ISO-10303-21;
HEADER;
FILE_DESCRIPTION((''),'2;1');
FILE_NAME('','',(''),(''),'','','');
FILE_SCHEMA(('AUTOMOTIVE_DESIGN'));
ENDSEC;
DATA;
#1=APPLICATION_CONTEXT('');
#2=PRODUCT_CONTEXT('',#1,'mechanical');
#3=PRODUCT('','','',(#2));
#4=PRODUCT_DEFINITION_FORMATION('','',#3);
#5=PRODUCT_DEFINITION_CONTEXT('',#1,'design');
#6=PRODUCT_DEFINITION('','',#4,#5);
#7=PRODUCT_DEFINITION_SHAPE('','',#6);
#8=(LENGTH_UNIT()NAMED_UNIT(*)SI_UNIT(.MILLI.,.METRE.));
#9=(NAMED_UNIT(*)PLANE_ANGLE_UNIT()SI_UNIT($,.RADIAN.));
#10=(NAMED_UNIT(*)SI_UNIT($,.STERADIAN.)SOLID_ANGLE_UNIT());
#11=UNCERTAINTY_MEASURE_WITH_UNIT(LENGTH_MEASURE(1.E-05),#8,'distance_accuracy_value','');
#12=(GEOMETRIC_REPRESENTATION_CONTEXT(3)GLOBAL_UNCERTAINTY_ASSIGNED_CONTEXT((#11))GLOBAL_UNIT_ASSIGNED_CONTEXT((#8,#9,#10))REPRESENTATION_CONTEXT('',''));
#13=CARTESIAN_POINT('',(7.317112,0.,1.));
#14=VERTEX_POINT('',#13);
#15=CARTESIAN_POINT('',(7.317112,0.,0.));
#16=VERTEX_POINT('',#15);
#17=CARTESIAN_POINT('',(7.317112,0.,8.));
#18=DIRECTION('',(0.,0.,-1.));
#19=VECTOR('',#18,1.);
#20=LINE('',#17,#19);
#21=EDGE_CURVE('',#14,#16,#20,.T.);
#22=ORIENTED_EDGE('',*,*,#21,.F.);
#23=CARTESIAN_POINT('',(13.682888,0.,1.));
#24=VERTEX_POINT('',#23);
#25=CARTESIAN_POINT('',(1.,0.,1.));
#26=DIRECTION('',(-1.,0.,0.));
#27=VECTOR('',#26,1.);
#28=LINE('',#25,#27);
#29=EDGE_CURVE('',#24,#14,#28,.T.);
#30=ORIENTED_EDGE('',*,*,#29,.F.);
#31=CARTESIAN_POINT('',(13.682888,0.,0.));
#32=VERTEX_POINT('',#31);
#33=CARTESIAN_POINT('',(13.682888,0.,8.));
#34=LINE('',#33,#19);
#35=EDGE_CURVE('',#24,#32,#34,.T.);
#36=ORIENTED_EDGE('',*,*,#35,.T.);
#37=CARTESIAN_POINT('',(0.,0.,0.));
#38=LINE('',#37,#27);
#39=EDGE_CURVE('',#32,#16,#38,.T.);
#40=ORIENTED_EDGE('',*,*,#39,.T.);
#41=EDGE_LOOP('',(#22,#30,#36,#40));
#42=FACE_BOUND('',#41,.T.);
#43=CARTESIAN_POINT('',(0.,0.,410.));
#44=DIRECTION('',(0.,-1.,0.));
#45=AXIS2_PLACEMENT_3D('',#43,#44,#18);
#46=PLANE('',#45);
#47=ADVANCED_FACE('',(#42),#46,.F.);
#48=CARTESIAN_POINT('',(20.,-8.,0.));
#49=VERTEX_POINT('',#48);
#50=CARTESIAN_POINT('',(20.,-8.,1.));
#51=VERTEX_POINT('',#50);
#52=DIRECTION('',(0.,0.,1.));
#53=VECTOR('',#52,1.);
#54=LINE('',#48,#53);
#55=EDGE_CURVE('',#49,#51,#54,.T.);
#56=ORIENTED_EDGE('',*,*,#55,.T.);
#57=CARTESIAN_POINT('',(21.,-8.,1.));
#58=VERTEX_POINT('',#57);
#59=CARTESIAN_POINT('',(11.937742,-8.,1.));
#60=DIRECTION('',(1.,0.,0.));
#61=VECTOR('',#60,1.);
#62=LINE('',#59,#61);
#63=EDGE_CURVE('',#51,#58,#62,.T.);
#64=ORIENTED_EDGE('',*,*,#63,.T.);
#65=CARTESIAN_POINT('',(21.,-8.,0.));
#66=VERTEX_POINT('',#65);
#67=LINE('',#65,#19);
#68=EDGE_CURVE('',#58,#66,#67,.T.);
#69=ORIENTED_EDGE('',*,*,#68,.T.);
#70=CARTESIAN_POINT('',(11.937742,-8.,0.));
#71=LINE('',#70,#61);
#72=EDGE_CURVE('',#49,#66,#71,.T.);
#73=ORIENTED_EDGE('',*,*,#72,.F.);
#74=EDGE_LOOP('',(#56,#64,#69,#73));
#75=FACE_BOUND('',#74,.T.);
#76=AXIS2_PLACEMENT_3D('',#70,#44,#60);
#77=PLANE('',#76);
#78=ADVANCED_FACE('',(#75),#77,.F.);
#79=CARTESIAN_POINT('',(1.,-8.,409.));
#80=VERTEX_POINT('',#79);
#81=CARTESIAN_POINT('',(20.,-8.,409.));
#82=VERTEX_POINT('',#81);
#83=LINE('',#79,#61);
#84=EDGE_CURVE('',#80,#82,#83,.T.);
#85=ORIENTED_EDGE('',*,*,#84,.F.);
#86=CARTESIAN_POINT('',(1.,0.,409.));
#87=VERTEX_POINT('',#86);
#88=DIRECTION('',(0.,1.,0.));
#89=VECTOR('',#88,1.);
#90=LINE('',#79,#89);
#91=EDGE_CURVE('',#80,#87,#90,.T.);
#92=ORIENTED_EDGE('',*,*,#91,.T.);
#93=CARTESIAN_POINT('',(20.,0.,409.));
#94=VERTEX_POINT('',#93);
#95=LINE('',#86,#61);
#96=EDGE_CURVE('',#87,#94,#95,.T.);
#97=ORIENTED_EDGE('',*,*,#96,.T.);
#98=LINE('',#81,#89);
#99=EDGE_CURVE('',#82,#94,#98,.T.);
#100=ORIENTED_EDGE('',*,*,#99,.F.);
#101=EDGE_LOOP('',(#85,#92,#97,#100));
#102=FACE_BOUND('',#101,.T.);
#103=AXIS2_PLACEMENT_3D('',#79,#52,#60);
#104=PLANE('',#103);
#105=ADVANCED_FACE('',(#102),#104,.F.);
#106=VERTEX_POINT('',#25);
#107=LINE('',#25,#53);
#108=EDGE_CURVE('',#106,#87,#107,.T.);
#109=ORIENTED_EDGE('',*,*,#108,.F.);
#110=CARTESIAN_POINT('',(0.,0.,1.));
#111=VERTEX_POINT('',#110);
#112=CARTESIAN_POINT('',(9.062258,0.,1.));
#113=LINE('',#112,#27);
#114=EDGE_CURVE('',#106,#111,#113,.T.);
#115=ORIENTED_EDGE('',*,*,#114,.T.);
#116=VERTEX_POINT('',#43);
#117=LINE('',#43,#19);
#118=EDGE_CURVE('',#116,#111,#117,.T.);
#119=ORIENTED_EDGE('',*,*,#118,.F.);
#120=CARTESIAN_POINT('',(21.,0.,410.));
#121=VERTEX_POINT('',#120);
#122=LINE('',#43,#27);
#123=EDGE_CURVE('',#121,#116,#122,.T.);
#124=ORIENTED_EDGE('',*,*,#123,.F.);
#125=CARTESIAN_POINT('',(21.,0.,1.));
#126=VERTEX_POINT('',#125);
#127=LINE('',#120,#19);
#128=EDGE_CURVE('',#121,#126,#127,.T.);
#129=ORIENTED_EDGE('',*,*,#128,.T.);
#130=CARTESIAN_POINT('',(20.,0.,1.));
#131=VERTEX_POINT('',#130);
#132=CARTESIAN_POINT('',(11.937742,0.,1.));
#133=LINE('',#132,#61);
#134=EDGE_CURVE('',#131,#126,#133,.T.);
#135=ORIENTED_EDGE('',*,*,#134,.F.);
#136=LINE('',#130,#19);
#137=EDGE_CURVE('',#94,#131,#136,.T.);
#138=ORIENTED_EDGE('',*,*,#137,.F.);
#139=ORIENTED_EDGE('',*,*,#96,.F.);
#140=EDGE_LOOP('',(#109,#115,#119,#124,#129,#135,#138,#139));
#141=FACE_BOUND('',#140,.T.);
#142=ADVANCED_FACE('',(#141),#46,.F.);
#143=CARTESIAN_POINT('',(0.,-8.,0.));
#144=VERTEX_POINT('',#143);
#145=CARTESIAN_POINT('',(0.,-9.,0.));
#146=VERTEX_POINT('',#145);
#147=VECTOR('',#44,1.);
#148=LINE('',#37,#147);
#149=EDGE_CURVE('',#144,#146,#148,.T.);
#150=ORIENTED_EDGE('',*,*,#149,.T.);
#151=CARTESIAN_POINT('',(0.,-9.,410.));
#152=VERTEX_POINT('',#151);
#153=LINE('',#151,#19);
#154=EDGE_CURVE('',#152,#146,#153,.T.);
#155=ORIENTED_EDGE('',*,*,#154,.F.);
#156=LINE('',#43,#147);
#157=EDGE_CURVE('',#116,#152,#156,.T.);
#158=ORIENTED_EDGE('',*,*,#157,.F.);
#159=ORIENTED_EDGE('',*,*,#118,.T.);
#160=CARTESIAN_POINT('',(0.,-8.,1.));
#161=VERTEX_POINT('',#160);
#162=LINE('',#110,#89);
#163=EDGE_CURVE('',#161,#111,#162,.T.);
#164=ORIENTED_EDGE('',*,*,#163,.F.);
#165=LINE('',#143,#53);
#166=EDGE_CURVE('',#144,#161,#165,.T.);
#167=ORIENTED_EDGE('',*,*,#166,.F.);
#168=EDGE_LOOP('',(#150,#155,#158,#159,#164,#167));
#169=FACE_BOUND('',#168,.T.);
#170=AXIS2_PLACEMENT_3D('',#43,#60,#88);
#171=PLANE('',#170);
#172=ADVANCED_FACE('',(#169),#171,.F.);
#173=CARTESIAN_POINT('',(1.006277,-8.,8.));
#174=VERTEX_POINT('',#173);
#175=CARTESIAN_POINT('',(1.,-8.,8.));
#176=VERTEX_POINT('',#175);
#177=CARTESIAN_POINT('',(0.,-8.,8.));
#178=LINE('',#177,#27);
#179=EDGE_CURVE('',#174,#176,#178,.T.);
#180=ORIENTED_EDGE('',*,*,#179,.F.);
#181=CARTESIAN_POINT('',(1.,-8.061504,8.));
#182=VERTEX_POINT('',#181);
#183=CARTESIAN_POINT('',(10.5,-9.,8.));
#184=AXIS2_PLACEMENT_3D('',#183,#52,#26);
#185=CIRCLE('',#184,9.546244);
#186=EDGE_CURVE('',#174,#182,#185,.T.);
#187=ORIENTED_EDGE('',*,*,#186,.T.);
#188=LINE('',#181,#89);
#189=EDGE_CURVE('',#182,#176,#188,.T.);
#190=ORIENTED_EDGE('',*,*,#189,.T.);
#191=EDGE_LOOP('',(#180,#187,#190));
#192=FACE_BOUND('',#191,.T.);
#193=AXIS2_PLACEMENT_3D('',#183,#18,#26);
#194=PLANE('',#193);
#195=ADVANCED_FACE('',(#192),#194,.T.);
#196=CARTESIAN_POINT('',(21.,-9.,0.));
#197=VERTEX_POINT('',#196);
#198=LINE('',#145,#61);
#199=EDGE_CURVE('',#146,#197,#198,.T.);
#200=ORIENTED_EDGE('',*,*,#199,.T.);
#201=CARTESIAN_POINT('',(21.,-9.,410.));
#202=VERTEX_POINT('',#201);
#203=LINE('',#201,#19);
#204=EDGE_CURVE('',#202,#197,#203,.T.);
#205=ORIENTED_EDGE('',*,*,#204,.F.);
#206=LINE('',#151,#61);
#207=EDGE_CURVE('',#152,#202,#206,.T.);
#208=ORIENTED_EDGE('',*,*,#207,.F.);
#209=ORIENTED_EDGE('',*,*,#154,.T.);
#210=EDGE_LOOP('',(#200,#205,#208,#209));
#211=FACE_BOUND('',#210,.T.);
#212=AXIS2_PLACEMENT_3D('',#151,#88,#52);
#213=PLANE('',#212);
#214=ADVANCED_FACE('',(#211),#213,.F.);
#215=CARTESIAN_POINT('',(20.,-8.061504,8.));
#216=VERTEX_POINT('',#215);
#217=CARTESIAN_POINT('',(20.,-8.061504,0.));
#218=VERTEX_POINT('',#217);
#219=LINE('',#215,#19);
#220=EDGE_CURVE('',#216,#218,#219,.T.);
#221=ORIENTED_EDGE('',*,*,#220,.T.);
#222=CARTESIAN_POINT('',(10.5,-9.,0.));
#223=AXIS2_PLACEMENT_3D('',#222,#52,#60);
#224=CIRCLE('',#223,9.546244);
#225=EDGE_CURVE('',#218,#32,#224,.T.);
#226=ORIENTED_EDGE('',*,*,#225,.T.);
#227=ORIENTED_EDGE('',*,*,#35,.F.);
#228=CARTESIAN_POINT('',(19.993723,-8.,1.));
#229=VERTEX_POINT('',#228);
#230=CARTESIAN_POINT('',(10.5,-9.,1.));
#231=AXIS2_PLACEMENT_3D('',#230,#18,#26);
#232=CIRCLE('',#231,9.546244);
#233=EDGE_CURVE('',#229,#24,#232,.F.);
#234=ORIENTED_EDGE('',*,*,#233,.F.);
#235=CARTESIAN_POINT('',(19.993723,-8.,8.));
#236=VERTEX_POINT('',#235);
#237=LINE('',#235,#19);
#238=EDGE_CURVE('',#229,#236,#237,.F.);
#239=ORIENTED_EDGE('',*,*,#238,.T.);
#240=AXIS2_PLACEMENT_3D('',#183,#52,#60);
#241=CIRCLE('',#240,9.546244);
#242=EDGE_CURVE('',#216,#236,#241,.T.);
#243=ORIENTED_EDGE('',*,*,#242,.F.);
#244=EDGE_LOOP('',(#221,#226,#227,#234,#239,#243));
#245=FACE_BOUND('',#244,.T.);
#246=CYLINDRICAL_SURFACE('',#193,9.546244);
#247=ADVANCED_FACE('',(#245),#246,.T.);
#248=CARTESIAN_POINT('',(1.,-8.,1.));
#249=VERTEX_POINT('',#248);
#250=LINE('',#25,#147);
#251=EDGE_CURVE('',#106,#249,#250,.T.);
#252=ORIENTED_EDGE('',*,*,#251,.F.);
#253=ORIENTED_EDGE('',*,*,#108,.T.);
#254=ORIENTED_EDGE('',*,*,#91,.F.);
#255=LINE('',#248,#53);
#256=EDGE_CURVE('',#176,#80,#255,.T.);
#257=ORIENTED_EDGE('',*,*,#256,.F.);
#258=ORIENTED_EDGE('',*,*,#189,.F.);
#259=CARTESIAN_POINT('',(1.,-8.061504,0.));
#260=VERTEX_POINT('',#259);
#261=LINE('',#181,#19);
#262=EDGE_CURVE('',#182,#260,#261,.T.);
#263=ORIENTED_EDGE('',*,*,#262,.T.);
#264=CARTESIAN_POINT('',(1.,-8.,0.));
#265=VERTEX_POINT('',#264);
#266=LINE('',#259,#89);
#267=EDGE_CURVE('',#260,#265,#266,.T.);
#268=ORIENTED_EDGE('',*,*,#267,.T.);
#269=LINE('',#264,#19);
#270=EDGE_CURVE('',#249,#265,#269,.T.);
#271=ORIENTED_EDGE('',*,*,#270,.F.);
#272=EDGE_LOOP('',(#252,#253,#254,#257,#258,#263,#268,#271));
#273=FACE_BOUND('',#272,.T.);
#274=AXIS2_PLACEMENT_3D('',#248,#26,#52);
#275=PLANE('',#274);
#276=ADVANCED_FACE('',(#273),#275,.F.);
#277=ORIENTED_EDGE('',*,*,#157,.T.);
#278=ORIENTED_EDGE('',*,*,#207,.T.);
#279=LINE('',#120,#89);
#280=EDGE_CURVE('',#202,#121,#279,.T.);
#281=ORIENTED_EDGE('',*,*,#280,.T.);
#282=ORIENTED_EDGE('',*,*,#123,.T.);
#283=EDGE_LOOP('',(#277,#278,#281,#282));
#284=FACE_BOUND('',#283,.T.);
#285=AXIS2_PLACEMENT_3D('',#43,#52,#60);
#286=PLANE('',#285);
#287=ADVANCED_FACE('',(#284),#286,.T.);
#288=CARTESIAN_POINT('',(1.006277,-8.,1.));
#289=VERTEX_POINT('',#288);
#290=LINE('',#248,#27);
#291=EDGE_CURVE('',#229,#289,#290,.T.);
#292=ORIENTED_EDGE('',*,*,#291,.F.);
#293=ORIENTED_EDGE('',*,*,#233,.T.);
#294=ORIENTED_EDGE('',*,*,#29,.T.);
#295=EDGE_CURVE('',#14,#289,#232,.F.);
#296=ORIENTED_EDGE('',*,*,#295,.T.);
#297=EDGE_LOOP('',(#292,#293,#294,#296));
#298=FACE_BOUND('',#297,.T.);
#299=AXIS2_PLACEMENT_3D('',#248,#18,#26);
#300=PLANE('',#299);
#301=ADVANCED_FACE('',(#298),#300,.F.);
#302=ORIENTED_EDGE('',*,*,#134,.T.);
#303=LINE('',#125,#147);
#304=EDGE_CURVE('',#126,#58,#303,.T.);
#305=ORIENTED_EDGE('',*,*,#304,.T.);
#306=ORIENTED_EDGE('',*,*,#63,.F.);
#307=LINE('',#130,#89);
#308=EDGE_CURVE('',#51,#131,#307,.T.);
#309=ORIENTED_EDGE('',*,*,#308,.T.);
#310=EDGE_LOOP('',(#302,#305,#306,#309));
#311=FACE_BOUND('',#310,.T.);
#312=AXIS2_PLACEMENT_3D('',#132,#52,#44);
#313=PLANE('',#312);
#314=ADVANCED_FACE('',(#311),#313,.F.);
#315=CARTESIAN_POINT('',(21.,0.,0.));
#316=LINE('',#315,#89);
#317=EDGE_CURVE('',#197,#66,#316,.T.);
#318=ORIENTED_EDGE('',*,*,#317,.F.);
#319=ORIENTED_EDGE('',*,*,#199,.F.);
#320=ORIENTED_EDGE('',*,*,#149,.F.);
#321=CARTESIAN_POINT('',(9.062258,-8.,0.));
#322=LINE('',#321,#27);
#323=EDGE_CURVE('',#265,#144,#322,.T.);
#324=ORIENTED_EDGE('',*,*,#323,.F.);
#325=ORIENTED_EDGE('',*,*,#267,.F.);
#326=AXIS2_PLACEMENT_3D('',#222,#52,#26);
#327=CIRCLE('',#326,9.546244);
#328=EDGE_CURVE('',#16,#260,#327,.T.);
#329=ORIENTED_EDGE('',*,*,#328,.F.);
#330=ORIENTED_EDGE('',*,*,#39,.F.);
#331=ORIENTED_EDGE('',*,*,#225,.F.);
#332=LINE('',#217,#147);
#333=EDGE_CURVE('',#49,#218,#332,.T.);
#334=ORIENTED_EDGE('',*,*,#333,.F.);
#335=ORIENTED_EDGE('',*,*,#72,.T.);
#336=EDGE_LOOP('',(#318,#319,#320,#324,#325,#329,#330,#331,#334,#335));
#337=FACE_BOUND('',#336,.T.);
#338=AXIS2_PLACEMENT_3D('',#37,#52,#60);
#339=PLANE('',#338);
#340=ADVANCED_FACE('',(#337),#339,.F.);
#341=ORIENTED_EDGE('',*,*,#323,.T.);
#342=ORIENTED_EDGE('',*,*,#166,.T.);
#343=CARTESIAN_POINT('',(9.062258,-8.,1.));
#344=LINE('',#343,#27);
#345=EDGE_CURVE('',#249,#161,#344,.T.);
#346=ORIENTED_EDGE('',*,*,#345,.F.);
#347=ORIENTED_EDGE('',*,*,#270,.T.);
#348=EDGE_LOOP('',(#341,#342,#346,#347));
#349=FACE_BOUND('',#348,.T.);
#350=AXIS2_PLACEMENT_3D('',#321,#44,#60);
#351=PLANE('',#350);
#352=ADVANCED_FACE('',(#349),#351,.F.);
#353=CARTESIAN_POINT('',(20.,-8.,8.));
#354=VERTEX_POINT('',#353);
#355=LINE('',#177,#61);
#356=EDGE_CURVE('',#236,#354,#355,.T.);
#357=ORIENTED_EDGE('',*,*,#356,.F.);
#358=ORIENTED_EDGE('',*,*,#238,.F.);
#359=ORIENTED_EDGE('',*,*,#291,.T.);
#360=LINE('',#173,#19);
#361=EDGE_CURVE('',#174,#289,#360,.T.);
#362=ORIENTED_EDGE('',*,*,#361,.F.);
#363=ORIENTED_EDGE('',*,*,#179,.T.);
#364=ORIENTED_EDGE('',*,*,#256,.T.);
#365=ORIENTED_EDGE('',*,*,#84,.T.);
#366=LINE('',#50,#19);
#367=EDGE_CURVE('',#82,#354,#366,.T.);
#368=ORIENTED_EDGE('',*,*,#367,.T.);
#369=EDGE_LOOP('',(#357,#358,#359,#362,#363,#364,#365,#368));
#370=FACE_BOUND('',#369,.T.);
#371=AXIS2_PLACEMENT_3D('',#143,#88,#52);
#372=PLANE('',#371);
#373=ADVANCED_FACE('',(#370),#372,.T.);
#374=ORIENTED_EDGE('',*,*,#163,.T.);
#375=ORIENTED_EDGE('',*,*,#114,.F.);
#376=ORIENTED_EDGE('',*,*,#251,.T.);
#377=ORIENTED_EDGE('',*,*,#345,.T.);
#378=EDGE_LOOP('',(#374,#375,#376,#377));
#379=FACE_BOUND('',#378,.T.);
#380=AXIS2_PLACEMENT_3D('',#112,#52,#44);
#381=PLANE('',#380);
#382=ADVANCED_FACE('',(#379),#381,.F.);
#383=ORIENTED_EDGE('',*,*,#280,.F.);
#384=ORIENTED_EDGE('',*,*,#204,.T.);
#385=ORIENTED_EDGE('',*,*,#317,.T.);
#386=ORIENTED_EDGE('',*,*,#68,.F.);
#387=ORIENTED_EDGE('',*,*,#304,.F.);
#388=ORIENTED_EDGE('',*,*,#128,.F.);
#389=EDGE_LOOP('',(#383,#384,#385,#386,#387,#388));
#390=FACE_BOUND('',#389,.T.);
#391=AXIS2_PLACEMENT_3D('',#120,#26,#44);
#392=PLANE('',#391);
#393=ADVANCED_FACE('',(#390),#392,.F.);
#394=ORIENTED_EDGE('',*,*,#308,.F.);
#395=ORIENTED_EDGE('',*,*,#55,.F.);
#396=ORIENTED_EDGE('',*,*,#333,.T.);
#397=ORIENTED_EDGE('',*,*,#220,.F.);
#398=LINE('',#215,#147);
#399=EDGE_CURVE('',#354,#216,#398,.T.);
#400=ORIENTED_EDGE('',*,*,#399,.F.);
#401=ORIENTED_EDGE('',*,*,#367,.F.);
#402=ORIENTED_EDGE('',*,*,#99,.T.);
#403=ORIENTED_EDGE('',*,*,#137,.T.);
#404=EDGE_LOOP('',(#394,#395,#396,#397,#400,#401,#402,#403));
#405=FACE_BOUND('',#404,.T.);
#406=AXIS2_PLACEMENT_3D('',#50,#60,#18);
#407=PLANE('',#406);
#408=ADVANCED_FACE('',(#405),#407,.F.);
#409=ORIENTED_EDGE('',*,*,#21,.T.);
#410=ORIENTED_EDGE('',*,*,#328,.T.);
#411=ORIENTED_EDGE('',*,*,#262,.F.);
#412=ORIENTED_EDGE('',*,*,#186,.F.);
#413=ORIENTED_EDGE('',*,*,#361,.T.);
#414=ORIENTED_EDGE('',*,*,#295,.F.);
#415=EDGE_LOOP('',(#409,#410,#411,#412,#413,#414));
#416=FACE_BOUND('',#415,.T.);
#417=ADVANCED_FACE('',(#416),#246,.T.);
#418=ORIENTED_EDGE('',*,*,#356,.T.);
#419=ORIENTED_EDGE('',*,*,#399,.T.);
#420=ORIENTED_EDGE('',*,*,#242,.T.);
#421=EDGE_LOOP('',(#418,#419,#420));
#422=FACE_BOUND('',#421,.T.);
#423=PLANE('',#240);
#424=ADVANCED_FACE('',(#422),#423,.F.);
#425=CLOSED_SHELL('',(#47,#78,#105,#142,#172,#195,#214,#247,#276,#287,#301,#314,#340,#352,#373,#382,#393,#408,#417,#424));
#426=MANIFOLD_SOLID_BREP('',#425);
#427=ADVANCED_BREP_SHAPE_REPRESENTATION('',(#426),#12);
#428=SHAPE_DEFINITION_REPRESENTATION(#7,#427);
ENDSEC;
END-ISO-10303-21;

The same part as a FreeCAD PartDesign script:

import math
import FreeCAD as App
import Part
import Sketcher
from FreeCAD import Vector


def add_polygon(sketch, points):
    """Adds a closed chain of lines whose ends are joined by coincident constraints."""
    first, n = sketch.GeometryCount, len(points)
    for a, b in zip(points, points[1:] + points[:1]):
        sketch.addGeometry(Part.LineSegment(App.Vector(*a, 0), App.Vector(*b, 0)), False)
    for i in range(n):
        sketch.addConstraint(Sketcher.Constraint("Coincident", first + i, 2, first + (i + 1) % n, 1))

doc = App.newDocument("Part")
body = doc.addObject("PartDesign::Body", "Body")

sketch1 = doc.addObject("Sketcher::SketchObject", "Sketch")
body.addObject(sketch1)
sketch1.AttachmentSupport = (doc.XY_Plane, [""])
sketch1.MapMode = "FlatFace"
add_polygon(sketch1, [(0, 0), (0, -9), (21, -9), (21, 0)])
sketch1.addConstraint([
    Sketcher.Constraint("Vertical", 0),
    Sketcher.Constraint("Horizontal", 1),
    Sketcher.Constraint("Vertical", 2),
    Sketcher.Constraint("Horizontal", 3),
    Sketcher.Constraint("Coincident", 3, 2, -1, 1),
    Sketcher.Constraint("DistanceX", 1, 1, 1, 2, 21.0),
    Sketcher.Constraint("DistanceY", 0, 2, 0, 1, 9.0),
])
pad1 = doc.addObject("PartDesign::Pad", "Pad")
body.addObject(pad1)
pad1.Profile = sketch1
pad1.Length = 410

sketch2 = doc.addObject("Sketcher::SketchObject", "Sketch001")
body.addObject(sketch2)
sketch2.AttachmentSupport = (doc.XZ_Plane, [""])
sketch2.MapMode = "FlatFace"
add_polygon(sketch2, [(1, 1), (1, 409), (20, 409), (20, 1)])
sketch2.addConstraint([
    Sketcher.Constraint("Vertical", 0),
    Sketcher.Constraint("Horizontal", 1),
    Sketcher.Constraint("Vertical", 2),
    Sketcher.Constraint("Horizontal", 3),
    Sketcher.Constraint("DistanceX", 1, 1, 1, 2, 19.0),
    Sketcher.Constraint("DistanceY", 0, 1, 0, 2, 408.0),
    Sketcher.Constraint("DistanceX", -1, 1, 0, 2, 1.0),
    Sketcher.Constraint("DistanceY", -1, 1, 0, 2, 409.0),
])
pocket1 = doc.addObject("PartDesign::Pocket", "Pocket")
body.addObject(pocket1)
pocket1.Profile = sketch2
pocket1.Length = 8
pocket1.Reversed = True

sketch3 = doc.addObject("Sketcher::SketchObject", "Sketch002")
body.addObject(sketch3)
sketch3.AttachmentSupport = (doc.XY_Plane, [""])
sketch3.MapMode = "FlatFace"
sketch3.addGeometry([
    Part.LineSegment(Vector(20, 0, 0), Vector(20, -8.061504, 0)),
    Part.ArcOfCircle(Part.Circle(Vector(10.5, -9, 0), Vector(0, 0, 1), 9.546244), math.radians(5.641892), math.radians(70.523645)),
    Part.LineSegment(Vector(13.682888, 0, 0), Vector(20, 0, 0)),
    Part.LineSegment(Vector(1, 0, 0), Vector(7.317112, 0, 0)),
    Part.ArcOfCircle(Part.Circle(Vector(10.5, -9, 0), Vector(0, 0, 1), 9.546244), math.radians(109.476355), math.radians(174.358108)),
    Part.LineSegment(Vector(1, -8.061504, 0), Vector(1, 0, 0)),
], False)
sketch3.addConstraint([
    Sketcher.Constraint("Coincident", 0, 2, 1, 1),
    Sketcher.Constraint("Coincident", 1, 2, 2, 1),
    Sketcher.Constraint("Coincident", 2, 2, 0, 1),
    Sketcher.Constraint("Coincident", 3, 2, 4, 1),
    Sketcher.Constraint("Coincident", 4, 2, 5, 1),
    Sketcher.Constraint("Coincident", 5, 2, 3, 1),
    Sketcher.Constraint("Vertical", 0),
    Sketcher.Constraint("Horizontal", 2),
    Sketcher.Constraint("Horizontal", 3),
    Sketcher.Constraint("Vertical", 5),
    Sketcher.Constraint("Coincident", 4, 3, 1, 3),
    Sketcher.Constraint("Equal", 1, 4),
    Sketcher.Constraint("PointOnObject", 1, 2, -1),
    Sketcher.Constraint("PointOnObject", 3, 2, -1),
    Sketcher.Constraint("Horizontal", 0, 2, 4, 2),
    Sketcher.Constraint("DistanceY", 1, 3, -1, 1, 9.0),
    Sketcher.Constraint("DistanceX", -1, 1, 0, 2, 20.0),
    Sketcher.Constraint("DistanceX", -1, 1, 4, 2, 1.0),
    Sketcher.Constraint("Radius", 1, 9.546244),
])
pocket2 = doc.addObject("PartDesign::Pocket", "Pocket001")
body.addObject(pocket2)
pocket2.Profile = sketch3
pocket2.Length = 8
pocket2.Reversed = True

sketch4 = doc.addObject("Sketcher::SketchObject", "Sketch003")
body.addObject(sketch4)
sketch4.AttachmentSupport = (doc.YZ_Plane, [""])
sketch4.MapMode = "FlatFace"
sketch4.AttachmentOffset = App.Placement(Vector(0, 0, 21), App.Rotation())
add_polygon(sketch4, [(0, 1), (-8, 1), (-8, 0), (0, 0)])
sketch4.addConstraint([
    Sketcher.Constraint("Horizontal", 0),
    Sketcher.Constraint("Vertical", 1),
    Sketcher.Constraint("Horizontal", 2),
    Sketcher.Constraint("Vertical", 3),
    Sketcher.Constraint("Coincident", 2, 2, -1, 1),
    Sketcher.Constraint("DistanceX", 0, 2, 0, 1, 8.0),
    Sketcher.Constraint("DistanceY", 1, 2, 1, 1, 1.0),
])
pocket3 = doc.addObject("PartDesign::Pocket", "Pocket002")
body.addObject(pocket3)
pocket3.Profile = sketch4
pocket3.Length = 1

sketch5 = doc.addObject("Sketcher::SketchObject", "Sketch004")
body.addObject(sketch5)
sketch5.AttachmentSupport = (doc.YZ_Plane, [""])
sketch5.MapMode = "FlatFace"
add_polygon(sketch5, [(0, 0), (-8, 0), (-8, 1), (0, 1)])
sketch5.addConstraint([
    Sketcher.Constraint("Horizontal", 0),
    Sketcher.Constraint("Vertical", 1),
    Sketcher.Constraint("Horizontal", 2),
    Sketcher.Constraint("Vertical", 3),
    Sketcher.Constraint("Coincident", 3, 2, -1, 1),
    Sketcher.Constraint("DistanceX", 0, 2, 0, 1, 8.0),
    Sketcher.Constraint("DistanceY", 1, 1, 1, 2, 1.0),
])
pocket4 = doc.addObject("PartDesign::Pocket", "Pocket003")
body.addObject(pocket4)
pocket4.Profile = sketch5
pocket4.Length = 1
pocket4.Reversed = True

doc.recompute()
